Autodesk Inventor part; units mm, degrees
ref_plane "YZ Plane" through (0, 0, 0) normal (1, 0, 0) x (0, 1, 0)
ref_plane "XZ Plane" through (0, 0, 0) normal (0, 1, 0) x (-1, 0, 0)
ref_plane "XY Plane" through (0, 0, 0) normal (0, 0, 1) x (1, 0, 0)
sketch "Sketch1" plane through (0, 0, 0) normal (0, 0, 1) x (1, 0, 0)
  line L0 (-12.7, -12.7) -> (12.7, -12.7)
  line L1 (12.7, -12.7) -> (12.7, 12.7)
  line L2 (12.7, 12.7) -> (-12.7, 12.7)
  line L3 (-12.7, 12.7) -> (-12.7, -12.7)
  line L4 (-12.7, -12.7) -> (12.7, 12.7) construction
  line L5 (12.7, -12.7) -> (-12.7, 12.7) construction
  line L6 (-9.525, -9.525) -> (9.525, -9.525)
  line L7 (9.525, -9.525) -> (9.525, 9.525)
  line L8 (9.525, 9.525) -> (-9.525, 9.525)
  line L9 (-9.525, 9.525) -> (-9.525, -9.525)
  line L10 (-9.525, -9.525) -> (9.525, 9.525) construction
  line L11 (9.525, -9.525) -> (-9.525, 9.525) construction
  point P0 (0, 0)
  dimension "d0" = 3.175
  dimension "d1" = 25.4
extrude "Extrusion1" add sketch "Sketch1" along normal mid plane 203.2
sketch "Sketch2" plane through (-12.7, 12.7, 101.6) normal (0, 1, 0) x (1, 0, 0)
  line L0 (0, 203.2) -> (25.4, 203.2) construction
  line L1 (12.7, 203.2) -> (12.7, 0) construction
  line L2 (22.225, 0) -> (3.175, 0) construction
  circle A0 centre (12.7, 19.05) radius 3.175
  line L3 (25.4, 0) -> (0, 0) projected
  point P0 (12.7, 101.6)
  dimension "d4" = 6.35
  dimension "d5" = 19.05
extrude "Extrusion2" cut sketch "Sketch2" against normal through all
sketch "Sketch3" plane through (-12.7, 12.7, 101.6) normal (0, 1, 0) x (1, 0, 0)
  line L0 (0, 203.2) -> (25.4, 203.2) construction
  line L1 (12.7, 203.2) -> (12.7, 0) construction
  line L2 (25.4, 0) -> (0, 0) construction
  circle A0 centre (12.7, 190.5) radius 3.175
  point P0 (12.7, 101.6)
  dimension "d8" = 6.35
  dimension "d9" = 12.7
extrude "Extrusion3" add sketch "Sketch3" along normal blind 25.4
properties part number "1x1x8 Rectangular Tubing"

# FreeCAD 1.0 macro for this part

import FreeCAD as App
import Part
import Sketcher
from FreeCAD import Vector
Q = App.Units.Quantity


def add_polygon(sketch, points):
    """Adds a closed chain of lines whose ends are joined by coincident constraints."""
    first, n = sketch.GeometryCount, len(points)
    for a, b in zip(points, points[1:] + points[:1]):
        sketch.addGeometry(Part.LineSegment(App.Vector(*a, 0), App.Vector(*b, 0)), False)
    for i in range(n):
        sketch.addConstraint(Sketcher.Constraint("Coincident", first + i, 2, first + (i + 1) % n, 1))

doc = App.newDocument("Part")
body = doc.addObject("PartDesign::Body", "Body")

sketch1 = doc.addObject("Sketcher::SketchObject", "Sketch")
body.addObject(sketch1)
sketch1.AttachmentSupport = (doc.XY_Plane, [""])
sketch1.MapMode = "FlatFace"
add_polygon(sketch1, [(-13, 13), (-13, -13), (13, -13), (13, 13)])
add_polygon(sketch1, [(10, -10), (-10, -10), (-10, 10), (10, 10)])
sketch1.addConstraint(Sketcher.Constraint("Vertical", 0))
sketch1.addConstraint(Sketcher.Constraint("Horizontal", 1))
sketch1.addConstraint(Sketcher.Constraint("Vertical", 2))
sketch1.addConstraint(Sketcher.Constraint("Horizontal", 3))
sketch1.addConstraint(Sketcher.Constraint("Horizontal", 4))
sketch1.addConstraint(Sketcher.Constraint("Vertical", 5))
sketch1.addConstraint(Sketcher.Constraint("Horizontal", 6))
sketch1.addConstraint(Sketcher.Constraint("Vertical", 7))
sketch1.addConstraint(Sketcher.Constraint("Symmetric", 0, 2, 2, 2, -1, 1))
sketch1.addConstraint(Sketcher.Constraint("Symmetric", 4, 2, 6, 2, -1, 1))
sketch1.addConstraint(Sketcher.Constraint("Equal", 3, 0))
sketch1.addConstraint(Sketcher.Constraint("Equal", 6, 5))
sketch1.addConstraint(Sketcher.Constraint("DistanceX", 1, 1, 1, 2, Q("1 in")))
sketch1.addConstraint(Sketcher.Constraint("DistanceX", 0, 2, 4, 2, Q("0.125 in")))
pad1 = doc.addObject("PartDesign::Pad", "Pad")
body.addObject(pad1)
pad1.Profile = sketch1
pad1.Length = Q("8 in")
pad1.Midplane = True

sketch2 = doc.addObject("Sketcher::SketchObject", "Sketch001")
body.addObject(sketch2)
sketch2.AttachmentSupport = (doc.XZ_Plane, [""])
sketch2.MapMode = "FlatFace"
sketch2.AttachmentOffset = App.Placement(Vector(0, 0, -0.5 * 25.4), App.Rotation())
sketch2.addGeometry(Part.Circle(Vector(0, 82.5, 0), Vector(0, 0, 1), 3.2), False)
sketch2.addConstraint(Sketcher.Constraint("PointOnObject", 0, 3, -2))
sketch2.addConstraint(Sketcher.Constraint("Diameter", 0, Q("0.25 in")))
sketch2.addConstraint(Sketcher.Constraint("DistanceY", -1, 1, 0, 3, Q("3.25 in")))
pocket1 = doc.addObject("PartDesign::Pocket", "Pocket")
body.addObject(pocket1)
pocket1.Profile = sketch2
pocket1.Type = "ThroughAll"
pocket1.Reversed = True

sketch3 = doc.addObject("Sketcher::SketchObject", "Sketch002")
body.addObject(sketch3)
sketch3.AttachmentSupport = (doc.XZ_Plane, [""])
sketch3.MapMode = "FlatFace"
sketch3.AttachmentOffset = App.Placement(Vector(0, 0, -0.5 * 25.4), App.Rotation())
sketch3.addGeometry(Part.Circle(Vector(0, -88.9, 0), Vector(0, 0, 1), 3.2), False)
sketch3.addConstraint(Sketcher.Constraint("PointOnObject", 0, 3, -2))
sketch3.addConstraint(Sketcher.Constraint("Diameter", 0, Q("0.25 in")))
sketch3.addConstraint(Sketcher.Constraint("DistanceY", 0, 3, -1, 1, Q("3.5 in")))
pad2 = doc.addObject("PartDesign::Pad", "Pad001")
body.addObject(pad2)
pad2.Profile = sketch3
pad2.Length = Q("1 in")
pad2.Reversed = True

doc.recompute()
